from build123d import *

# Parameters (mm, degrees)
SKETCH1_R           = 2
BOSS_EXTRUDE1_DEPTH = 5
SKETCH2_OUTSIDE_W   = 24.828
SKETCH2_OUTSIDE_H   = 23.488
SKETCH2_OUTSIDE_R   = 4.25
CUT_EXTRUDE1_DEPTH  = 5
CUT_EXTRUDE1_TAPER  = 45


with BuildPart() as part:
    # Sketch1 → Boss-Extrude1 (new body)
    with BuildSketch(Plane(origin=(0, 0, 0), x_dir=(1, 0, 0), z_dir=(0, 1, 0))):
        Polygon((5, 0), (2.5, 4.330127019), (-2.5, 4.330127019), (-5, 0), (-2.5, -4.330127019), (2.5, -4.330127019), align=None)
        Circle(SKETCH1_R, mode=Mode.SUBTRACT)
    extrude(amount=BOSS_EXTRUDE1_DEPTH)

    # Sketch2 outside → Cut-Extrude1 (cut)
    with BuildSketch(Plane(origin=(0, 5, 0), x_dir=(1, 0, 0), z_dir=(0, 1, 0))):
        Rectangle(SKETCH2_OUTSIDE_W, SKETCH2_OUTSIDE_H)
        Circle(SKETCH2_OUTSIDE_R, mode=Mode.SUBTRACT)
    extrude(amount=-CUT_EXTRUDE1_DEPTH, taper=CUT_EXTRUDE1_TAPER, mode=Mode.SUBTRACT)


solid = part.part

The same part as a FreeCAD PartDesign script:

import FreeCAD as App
import Part
import Sketcher
from FreeCAD import Vector
Q = App.Units.Quantity

doc = App.newDocument("Part")
body = doc.addObject("PartDesign::Body", "Body")

sketch1 = doc.addObject("Sketcher::SketchObject", "Sketch")
body.addObject(sketch1)
sketch1.AttachmentSupport = (doc.XZ_Plane, [""])
sketch1.MapMode = "FlatFace"
sketch1.addGeometry([
    Part.LineSegment(Vector(5, 0, 0), Vector(2.5, -4.330127, 0)),
    Part.LineSegment(Vector(2.5, -4.330127, 0), Vector(-2.5, -4.330127, 0)),
    Part.LineSegment(Vector(-2.5, -4.330127, 0), Vector(-5, 0, 0)),
    Part.LineSegment(Vector(-5, 0, 0), Vector(-2.5, 4.330127, 0)),
    Part.LineSegment(Vector(-2.5, 4.330127, 0), Vector(2.5, 4.330127, 0)),
    Part.LineSegment(Vector(2.5, 4.330127, 0), Vector(5, 0, 0)),
    Part.Circle(Vector(0, 0, 0), Vector(0, 0, 1), 2),
], False)
sketch1.addConstraint([
    Sketcher.Constraint("Coincident", 0, 2, 1, 1),
    Sketcher.Constraint("Coincident", 1, 2, 2, 1),
    Sketcher.Constraint("Coincident", 2, 2, 3, 1),
    Sketcher.Constraint("Coincident", 3, 2, 4, 1),
    Sketcher.Constraint("Coincident", 4, 2, 5, 1),
    Sketcher.Constraint("Coincident", 5, 2, 0, 1),
    Sketcher.Constraint("Horizontal", 1),
    Sketcher.Constraint("Horizontal", 4),
    Sketcher.Constraint("Coincident", 6, 3, -1, 1),
    Sketcher.Constraint("Symmetric", 0, 2, 3, 2, -1, 1),
    Sketcher.Constraint("Symmetric", 2, 2, 5, 2, -1, 1),
    Sketcher.Constraint("PointOnObject", 2, 2, -1),
    Sketcher.Constraint("Parallel", 2, 5),
    Sketcher.Constraint("Vertical", 1, 2, 3, 2),
    Sketcher.Constraint("Diameter", 6, Q("4 mm")),
    Sketcher.Constraint("DistanceX", 1, 2, 1, 1, Q("5 mm")),
    Sketcher.Constraint("Angle", 0, Q("-120 deg")),
    Sketcher.Constraint("Distance", 0, Q("5 mm")),
])
pad1 = doc.addObject("PartDesign::Pad", "Pad")
body.addObject(pad1)
pad1.Profile = sketch1
pad1.Length = 5
pad1.Reversed = True

sketch2 = doc.addObject("Sketcher::SketchObject", "Sketch001")
body.addObject(sketch2)
sketch2.AttachmentSupport = (doc.XZ_Plane, [""])
sketch2.MapMode = "FlatFace"
sketch2.AttachmentOffset = App.Placement(Vector(0, 0, -5), App.Rotation())
sketch2.addGeometry([
    Part.LineSegment(Vector(-12.414, -11.744, 0), Vector(-12.414, 11.744, 0)),
    Part.LineSegment(Vector(-12.414, 11.744, 0), Vector(12.414, 11.744, 0)),
    Part.LineSegment(Vector(12.414, 11.744, 0), Vector(12.414, -11.744, 0)),
    Part.LineSegment(Vector(12.414, -11.744, 0), Vector(-12.414, -11.744, 0)),
    Part.Circle(Vector(0, 0, 0), Vector(0, 0, 1), 4.25),
], False)
sketch2.addConstraint([
    Sketcher.Constraint("Coincident", 0, 2, 1, 1),
    Sketcher.Constraint("Coincident", 1, 2, 2, 1),
    Sketcher.Constraint("Coincident", 2, 2, 3, 1),
    Sketcher.Constraint("Coincident", 3, 2, 0, 1),
    Sketcher.Constraint("Vertical", 0),
    Sketcher.Constraint("Horizontal", 1),
    Sketcher.Constraint("Vertical", 2),
    Sketcher.Constraint("Horizontal", 3),
    Sketcher.Constraint("Coincident", 4, 3, -1, 1),
    Sketcher.Constraint("Symmetric", 0, 2, 2, 2, -1, 1),
    Sketcher.Constraint("Diameter", 4, Q("8.5 mm")),
    Sketcher.Constraint("DistanceX", 1, 1, 1, 2, Q("24.828 mm")),
    Sketcher.Constraint("DistanceY", 0, 1, 0, 2, Q("23.488 mm")),
])
pocket1 = doc.addObject("PartDesign::Pocket", "Pocket")
body.addObject(pocket1)
pocket1.Profile = sketch2
pocket1.Length = 5
pocket1.Reversed = True
pocket1.TaperAngle = 45

doc.recompute()
